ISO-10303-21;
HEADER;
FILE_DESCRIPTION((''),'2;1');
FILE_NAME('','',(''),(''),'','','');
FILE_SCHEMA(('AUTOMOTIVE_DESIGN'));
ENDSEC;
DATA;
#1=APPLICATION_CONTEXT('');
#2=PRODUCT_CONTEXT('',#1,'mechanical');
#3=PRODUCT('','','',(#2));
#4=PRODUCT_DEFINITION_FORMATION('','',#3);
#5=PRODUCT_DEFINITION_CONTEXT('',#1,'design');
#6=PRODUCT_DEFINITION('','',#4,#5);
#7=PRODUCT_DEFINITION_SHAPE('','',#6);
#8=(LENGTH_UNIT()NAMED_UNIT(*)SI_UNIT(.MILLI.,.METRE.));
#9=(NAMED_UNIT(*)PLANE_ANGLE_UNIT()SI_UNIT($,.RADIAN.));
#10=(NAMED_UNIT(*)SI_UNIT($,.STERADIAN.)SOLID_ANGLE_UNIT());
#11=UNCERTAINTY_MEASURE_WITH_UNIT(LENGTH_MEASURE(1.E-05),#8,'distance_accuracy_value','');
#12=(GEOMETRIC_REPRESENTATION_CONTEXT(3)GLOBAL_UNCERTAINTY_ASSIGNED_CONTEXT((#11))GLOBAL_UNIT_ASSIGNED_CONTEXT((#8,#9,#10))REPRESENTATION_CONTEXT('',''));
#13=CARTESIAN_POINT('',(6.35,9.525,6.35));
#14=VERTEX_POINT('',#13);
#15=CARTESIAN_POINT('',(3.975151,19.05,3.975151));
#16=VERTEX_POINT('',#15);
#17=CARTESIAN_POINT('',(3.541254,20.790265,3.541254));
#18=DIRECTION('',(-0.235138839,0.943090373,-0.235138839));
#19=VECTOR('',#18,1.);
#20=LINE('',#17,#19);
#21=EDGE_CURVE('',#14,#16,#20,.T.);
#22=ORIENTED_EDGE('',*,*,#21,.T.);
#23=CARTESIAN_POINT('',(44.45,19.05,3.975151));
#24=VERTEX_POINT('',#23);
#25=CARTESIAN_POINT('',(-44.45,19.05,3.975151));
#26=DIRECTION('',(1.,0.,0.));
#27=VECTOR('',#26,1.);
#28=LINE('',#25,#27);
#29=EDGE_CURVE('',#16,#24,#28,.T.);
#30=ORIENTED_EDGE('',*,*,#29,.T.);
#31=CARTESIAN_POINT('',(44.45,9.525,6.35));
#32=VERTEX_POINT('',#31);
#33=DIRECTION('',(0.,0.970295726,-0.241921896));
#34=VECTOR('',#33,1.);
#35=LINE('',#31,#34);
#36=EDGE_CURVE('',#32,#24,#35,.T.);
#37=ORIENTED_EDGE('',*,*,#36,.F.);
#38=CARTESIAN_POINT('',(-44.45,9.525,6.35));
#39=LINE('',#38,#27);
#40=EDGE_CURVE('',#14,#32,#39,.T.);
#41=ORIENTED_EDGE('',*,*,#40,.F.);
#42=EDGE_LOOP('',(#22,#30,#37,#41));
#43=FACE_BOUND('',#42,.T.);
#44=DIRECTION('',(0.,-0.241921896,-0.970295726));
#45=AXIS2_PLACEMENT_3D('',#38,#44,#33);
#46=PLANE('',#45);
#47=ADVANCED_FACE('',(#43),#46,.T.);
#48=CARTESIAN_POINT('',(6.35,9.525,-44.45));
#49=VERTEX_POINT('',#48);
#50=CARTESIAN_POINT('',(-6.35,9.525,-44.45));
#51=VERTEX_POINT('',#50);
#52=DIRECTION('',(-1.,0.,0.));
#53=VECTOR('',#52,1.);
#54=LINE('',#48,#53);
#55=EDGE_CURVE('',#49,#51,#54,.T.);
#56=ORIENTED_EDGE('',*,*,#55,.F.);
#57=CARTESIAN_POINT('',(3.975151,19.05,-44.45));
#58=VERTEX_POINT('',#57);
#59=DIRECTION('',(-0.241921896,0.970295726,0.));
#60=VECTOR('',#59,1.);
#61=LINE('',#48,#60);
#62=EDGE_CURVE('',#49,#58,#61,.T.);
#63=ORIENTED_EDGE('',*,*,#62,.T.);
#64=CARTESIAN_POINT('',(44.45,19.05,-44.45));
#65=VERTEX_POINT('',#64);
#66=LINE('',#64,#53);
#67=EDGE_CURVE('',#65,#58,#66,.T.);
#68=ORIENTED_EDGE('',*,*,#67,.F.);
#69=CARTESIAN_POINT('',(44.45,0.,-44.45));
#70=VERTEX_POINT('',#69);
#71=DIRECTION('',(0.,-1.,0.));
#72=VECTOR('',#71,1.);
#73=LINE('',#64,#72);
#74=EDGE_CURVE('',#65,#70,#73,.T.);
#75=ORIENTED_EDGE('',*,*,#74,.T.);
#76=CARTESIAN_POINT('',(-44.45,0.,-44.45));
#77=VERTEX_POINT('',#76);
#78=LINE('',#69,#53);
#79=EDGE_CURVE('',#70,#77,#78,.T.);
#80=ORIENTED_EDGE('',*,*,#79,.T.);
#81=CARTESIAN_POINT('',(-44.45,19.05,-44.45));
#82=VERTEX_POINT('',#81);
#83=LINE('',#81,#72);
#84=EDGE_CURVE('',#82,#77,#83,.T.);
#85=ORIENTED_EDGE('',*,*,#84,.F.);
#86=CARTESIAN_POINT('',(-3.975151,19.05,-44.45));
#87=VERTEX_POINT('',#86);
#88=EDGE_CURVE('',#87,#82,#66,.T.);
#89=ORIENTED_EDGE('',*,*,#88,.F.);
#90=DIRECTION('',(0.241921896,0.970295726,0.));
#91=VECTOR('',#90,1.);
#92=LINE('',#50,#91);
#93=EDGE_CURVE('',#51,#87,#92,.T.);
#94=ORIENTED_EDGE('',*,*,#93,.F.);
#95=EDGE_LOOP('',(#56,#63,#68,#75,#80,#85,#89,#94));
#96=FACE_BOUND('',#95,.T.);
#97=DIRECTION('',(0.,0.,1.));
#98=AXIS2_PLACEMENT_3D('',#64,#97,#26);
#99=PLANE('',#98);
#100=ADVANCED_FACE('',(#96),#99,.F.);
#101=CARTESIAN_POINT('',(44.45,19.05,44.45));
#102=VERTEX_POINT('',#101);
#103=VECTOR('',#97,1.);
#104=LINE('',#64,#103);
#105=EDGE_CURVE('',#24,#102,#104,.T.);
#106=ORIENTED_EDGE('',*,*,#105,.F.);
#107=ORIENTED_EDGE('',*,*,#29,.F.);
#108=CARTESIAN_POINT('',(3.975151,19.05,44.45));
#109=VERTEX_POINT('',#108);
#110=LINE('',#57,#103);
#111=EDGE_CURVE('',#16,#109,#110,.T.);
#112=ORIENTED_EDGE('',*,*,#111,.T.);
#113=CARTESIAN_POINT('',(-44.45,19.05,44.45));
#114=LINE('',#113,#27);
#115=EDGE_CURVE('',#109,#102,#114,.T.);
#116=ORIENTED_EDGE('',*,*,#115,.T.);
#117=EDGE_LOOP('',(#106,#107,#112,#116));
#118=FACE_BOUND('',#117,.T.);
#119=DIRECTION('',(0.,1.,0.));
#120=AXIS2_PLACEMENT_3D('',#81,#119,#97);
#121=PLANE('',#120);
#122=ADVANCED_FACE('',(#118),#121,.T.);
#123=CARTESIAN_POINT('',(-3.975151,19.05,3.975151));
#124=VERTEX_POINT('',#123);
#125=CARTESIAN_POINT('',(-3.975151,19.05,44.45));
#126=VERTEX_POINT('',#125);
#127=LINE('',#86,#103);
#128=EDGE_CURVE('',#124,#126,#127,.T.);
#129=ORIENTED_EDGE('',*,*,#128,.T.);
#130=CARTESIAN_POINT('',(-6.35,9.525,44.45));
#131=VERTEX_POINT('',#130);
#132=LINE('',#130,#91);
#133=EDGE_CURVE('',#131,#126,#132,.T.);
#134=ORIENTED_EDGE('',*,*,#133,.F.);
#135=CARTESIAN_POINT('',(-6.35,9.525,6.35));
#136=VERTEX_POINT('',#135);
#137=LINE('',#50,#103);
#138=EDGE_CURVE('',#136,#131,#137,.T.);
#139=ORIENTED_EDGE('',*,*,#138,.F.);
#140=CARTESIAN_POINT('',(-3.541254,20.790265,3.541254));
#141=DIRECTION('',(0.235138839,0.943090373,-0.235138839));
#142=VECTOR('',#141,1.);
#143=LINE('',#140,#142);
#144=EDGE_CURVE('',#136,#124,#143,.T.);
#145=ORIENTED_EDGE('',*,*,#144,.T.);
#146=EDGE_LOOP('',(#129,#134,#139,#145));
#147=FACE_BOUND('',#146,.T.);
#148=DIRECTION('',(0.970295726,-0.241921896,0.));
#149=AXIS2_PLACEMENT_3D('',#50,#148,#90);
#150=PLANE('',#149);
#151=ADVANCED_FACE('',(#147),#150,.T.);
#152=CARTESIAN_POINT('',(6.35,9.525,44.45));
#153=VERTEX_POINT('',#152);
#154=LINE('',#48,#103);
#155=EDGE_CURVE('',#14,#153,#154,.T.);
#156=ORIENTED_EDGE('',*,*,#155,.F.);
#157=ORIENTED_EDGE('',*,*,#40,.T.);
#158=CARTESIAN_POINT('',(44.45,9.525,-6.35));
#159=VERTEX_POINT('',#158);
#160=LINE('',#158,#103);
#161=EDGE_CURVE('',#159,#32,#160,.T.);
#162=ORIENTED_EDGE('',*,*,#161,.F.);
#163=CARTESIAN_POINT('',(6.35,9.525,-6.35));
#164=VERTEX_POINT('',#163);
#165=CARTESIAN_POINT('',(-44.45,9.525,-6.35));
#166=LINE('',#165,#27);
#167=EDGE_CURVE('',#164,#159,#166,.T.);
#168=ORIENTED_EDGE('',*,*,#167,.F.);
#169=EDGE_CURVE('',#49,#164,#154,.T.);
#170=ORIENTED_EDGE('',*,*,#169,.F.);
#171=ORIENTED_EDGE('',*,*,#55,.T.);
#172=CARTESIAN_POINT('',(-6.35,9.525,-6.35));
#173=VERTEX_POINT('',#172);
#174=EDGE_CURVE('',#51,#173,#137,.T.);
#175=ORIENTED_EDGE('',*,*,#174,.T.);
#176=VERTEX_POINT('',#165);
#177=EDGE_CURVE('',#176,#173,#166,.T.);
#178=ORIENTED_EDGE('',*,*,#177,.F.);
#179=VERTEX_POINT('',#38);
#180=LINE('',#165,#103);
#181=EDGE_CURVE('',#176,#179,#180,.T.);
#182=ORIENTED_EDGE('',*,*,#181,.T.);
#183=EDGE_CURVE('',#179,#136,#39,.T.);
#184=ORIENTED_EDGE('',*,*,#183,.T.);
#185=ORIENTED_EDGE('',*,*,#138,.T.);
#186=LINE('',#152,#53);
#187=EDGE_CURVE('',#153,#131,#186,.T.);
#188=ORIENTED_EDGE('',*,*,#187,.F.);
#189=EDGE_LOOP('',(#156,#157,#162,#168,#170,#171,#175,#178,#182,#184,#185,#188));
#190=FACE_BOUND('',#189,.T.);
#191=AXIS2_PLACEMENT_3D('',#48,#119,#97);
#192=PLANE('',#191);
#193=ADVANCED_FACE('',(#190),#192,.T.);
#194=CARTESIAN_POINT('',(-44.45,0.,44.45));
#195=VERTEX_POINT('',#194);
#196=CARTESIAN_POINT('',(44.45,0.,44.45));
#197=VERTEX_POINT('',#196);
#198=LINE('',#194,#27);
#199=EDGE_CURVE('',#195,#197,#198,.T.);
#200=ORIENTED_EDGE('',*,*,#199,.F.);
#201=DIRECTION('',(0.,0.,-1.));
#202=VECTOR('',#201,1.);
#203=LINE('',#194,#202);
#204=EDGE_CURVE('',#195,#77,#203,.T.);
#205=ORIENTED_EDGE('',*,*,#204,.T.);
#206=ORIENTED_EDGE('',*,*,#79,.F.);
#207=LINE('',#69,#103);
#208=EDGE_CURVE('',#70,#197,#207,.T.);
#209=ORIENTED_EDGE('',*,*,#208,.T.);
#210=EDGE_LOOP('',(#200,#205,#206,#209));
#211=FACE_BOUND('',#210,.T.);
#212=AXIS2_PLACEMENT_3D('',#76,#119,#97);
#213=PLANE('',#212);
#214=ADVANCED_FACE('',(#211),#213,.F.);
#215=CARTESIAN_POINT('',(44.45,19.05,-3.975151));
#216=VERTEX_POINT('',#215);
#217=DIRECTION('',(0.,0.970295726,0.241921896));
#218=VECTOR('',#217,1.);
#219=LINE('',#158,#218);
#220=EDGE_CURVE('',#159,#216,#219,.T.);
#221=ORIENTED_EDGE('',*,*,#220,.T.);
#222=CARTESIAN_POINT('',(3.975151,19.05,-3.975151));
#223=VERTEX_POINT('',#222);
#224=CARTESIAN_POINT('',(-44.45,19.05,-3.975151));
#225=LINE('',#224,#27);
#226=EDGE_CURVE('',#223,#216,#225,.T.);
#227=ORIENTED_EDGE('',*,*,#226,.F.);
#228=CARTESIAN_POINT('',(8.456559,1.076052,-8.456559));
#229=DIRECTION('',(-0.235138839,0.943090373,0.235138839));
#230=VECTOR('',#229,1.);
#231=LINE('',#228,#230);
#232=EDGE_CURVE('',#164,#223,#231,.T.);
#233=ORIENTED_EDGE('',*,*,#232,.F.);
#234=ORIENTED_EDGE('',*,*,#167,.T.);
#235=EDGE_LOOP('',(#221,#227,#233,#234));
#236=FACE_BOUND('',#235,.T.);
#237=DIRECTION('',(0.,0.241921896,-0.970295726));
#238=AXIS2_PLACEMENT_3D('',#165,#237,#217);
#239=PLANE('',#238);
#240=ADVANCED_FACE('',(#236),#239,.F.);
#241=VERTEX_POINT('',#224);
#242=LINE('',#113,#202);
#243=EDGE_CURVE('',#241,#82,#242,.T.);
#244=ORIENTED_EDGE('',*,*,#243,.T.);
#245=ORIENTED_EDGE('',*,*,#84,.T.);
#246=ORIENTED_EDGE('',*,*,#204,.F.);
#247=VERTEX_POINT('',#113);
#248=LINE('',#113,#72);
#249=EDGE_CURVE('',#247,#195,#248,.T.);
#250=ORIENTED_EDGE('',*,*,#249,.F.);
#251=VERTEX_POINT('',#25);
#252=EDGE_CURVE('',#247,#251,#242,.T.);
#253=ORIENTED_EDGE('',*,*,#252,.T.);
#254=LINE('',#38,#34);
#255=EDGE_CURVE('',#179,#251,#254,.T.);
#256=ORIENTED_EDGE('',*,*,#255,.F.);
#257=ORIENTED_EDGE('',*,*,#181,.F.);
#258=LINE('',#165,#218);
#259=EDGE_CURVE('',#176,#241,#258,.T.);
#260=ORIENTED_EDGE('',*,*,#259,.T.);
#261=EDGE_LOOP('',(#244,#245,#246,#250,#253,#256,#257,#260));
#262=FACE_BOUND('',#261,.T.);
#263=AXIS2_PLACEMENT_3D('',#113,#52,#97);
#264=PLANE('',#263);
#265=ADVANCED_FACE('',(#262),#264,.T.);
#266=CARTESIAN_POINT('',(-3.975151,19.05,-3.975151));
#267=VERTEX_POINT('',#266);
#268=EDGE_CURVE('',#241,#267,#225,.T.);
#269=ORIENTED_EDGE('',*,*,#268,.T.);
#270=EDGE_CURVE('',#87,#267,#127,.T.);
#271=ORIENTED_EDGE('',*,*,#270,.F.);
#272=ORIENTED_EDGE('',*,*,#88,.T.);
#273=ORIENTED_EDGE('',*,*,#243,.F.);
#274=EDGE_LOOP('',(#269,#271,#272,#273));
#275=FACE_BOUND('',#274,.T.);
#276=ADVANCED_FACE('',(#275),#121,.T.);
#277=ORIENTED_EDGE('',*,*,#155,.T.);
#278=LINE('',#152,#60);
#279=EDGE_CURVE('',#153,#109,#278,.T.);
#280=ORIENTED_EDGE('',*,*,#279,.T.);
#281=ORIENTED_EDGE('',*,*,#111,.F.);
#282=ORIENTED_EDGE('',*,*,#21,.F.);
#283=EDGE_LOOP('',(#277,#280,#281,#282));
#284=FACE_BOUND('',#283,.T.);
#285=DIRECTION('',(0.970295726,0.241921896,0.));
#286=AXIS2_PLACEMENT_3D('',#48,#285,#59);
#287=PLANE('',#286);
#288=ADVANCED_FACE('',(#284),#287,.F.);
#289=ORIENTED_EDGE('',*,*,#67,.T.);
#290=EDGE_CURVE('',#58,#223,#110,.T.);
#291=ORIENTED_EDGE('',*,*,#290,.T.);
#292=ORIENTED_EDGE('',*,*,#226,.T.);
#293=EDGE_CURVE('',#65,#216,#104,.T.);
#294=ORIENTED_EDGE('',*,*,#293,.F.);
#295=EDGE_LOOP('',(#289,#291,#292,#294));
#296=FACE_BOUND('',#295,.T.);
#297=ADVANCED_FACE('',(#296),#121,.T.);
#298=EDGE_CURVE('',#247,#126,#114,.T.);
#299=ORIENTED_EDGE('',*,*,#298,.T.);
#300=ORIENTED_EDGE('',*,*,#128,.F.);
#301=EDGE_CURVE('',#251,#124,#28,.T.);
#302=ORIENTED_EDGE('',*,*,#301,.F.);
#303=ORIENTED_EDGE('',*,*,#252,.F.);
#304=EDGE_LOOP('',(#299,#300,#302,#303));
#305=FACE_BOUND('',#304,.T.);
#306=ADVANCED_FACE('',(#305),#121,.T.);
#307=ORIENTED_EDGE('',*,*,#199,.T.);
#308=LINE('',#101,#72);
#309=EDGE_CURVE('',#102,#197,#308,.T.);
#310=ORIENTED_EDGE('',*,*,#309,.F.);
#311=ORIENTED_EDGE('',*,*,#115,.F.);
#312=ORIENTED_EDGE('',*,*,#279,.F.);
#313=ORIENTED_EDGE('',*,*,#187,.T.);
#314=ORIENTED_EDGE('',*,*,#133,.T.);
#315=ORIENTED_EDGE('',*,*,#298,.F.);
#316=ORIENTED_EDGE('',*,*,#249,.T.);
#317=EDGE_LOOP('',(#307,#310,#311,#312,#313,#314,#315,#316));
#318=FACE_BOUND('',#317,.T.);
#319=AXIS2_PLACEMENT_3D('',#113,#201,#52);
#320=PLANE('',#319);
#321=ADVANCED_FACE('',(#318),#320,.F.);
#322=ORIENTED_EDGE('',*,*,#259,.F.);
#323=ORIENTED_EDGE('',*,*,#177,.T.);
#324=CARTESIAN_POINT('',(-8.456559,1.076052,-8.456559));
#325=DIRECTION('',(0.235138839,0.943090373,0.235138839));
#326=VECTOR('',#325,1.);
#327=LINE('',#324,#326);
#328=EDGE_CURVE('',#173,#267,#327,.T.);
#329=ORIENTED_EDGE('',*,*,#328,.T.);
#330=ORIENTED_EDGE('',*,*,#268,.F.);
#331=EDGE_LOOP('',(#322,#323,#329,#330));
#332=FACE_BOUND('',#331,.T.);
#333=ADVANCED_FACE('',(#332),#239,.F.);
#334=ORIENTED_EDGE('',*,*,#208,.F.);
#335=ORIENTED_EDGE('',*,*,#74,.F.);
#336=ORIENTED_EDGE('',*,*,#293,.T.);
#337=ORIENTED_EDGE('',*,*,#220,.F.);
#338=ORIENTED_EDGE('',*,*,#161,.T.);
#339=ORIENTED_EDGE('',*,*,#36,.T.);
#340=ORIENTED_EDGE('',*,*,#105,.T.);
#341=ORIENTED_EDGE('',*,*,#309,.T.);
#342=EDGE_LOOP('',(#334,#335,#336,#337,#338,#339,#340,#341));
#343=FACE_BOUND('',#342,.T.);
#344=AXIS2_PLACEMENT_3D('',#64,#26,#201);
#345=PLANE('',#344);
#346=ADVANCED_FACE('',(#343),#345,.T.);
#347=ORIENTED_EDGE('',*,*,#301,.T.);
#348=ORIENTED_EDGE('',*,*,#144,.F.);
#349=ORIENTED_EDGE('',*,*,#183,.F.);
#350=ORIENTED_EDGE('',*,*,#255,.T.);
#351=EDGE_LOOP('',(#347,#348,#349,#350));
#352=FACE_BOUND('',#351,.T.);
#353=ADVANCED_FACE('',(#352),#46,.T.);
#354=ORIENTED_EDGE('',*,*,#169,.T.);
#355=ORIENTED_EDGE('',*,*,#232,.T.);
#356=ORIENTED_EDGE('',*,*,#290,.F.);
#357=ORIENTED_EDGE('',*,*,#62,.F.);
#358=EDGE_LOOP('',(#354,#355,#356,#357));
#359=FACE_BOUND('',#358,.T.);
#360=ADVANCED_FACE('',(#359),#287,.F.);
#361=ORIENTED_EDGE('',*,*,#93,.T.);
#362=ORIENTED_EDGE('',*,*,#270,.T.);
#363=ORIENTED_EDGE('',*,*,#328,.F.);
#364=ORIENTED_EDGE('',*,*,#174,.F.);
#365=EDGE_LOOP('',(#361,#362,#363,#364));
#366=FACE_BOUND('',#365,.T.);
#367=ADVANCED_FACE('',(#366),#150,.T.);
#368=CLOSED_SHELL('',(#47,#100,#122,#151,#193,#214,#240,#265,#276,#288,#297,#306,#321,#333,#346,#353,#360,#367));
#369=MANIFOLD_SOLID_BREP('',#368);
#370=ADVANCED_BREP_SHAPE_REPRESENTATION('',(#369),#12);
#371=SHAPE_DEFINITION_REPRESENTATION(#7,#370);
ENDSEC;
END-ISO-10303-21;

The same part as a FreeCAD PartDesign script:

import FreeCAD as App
import Part
import Sketcher

V = App.Vector
Q = App.Units.Quantity

doc = App.newDocument("Part")
body = doc.addObject("PartDesign::Body", "Body")

# Sketch on XZ plane
sketch1 = body.newObject("Sketcher::SketchObject", "Sketch")
sketch1.AttachmentSupport = (doc.getObject("XZ_Plane"), [""])
sketch1.MapMode = "FlatFace"
sketch1.addGeometry([
    Part.LineSegment(V(-44, -44, 0), V(-44, 44, 0)),
    Part.LineSegment(V(-44, 44, 0), V(44, 44, 0)),
    Part.LineSegment(V(44, 44, 0), V(44, -44, 0)),
    Part.LineSegment(V(44, -44, 0), V(-44, -44, 0)),
], False)
sketch1.addConstraint([
    Sketcher.Constraint("Coincident", 0, 2, 1, 1),
    Sketcher.Constraint("Coincident", 1, 2, 2, 1),
    Sketcher.Constraint("Coincident", 2, 2, 3, 1),
    Sketcher.Constraint("Coincident", 3, 2, 0, 1),
    Sketcher.Constraint("Vertical", 0),
    Sketcher.Constraint("Horizontal", 1),
    Sketcher.Constraint("Vertical", 2),
    Sketcher.Constraint("Horizontal", 3),
    Sketcher.Constraint("Symmetric", 0, 2, 2, 2, -1, 1),
    Sketcher.Constraint("Equal", 3, 0),
    Sketcher.Constraint("DistanceX", 1, 1, 1, 2, Q("3.5 in")),
])
pad1 = body.newObject("PartDesign::Pad", "Pad")
pad1.Profile = sketch1
pad1.Length = Q("0.75 in")
pad1.Reversed = True

# Sketch on XY plane
sketch2 = body.newObject("Sketcher::SketchObject", "Sketch001")
sketch2.AttachmentSupport = (doc.getObject("XY_Plane"), [""])
sketch2.MapMode = "FlatFace"
sketch2.AttachmentOffset = App.Placement(V(0, 0, 1.75 * 25.4), App.Rotation())
sketch2.addGeometry([
    Part.LineSegment(V(-6, 10, 0), V(6, 10, 0)),
    Part.LineSegment(V(6, 10, 0), V(4, 19, 0)),
    Part.LineSegment(V(4, 19, 0), V(-4, 19, 0)),
    Part.LineSegment(V(-4, 19, 0), V(-6, 10, 0)),
], False)
sketch2.addConstraint([
    Sketcher.Constraint("Coincident", 0, 2, 1, 1),
    Sketcher.Constraint("Coincident", 1, 2, 2, 1),
    Sketcher.Constraint("Coincident", 2, 2, 3, 1),
    Sketcher.Constraint("Coincident", 3, 2, 0, 1),
    Sketcher.Constraint("Horizontal", 0),
    Sketcher.Constraint("Horizontal", 2),
    Sketcher.Constraint("Equal", 1, 3),
    Sketcher.Constraint("DistanceX", 0, 1, 0, 2, Q("0.5 in")),
    Sketcher.Constraint("Angle", 1, Q("104 deg")),
    Sketcher.Constraint("DistanceX", -1, 1, 0, 2, Q("0.25 in")),
    Sketcher.Constraint("DistanceY", -1, 1, 1, 2, Q("0.75 in")),
    Sketcher.Constraint("DistanceY", -1, 1, 0, 2, Q("0.375 in")),
])
pocket1 = body.newObject("PartDesign::Pocket", "Pocket")
pocket1.Profile = sketch2
pocket1.Type = "ThroughAll"

# Sketch on YZ plane
sketch3 = body.newObject("Sketcher::SketchObject", "Sketch002")
sketch3.AttachmentSupport = (doc.getObject("YZ_Plane"), [""])
sketch3.MapMode = "FlatFace"
sketch3.AttachmentOffset = App.Placement(V(0, 0, 1.75 * 25.4), App.Rotation())
sketch3.addGeometry([
    Part.LineSegment(V(10, 6, 0), V(10, -6, 0)),
    Part.LineSegment(V(10, -6, 0), V(19, -4, 0)),
    Part.LineSegment(V(19, -4, 0), V(19, 4, 0)),
    Part.LineSegment(V(19, 4, 0), V(10, 6, 0)),
], False)
sketch3.addConstraint([
    Sketcher.Constraint("Coincident", 0, 2, 1, 1),
    Sketcher.Constraint("Coincident", 1, 2, 2, 1),
    Sketcher.Constraint("Coincident", 2, 2, 3, 1),
    Sketcher.Constraint("Coincident", 3, 2, 0, 1),
    Sketcher.Constraint("Vertical", 0),
    Sketcher.Constraint("Vertical", 2),
    Sketcher.Constraint("Equal", 1, 3),
    Sketcher.Constraint("DistanceY", 0, 2, 0, 1, Q("0.5 in")),
    Sketcher.Constraint("Angle", 1, Q("14 deg")),
    Sketcher.Constraint("DistanceY", 0, 2, -1, 1, Q("0.25 in")),
    Sketcher.Constraint("DistanceX", -1, 1, 1, 2, Q("0.75 in")),
    Sketcher.Constraint("DistanceX", -1, 1, 0, 2, Q("0.375 in")),
])
pocket2 = body.newObject("PartDesign::Pocket", "Pocket001")
pocket2.Profile = sketch3
pocket2.Type = "ThroughAll"

doc.recompute()
